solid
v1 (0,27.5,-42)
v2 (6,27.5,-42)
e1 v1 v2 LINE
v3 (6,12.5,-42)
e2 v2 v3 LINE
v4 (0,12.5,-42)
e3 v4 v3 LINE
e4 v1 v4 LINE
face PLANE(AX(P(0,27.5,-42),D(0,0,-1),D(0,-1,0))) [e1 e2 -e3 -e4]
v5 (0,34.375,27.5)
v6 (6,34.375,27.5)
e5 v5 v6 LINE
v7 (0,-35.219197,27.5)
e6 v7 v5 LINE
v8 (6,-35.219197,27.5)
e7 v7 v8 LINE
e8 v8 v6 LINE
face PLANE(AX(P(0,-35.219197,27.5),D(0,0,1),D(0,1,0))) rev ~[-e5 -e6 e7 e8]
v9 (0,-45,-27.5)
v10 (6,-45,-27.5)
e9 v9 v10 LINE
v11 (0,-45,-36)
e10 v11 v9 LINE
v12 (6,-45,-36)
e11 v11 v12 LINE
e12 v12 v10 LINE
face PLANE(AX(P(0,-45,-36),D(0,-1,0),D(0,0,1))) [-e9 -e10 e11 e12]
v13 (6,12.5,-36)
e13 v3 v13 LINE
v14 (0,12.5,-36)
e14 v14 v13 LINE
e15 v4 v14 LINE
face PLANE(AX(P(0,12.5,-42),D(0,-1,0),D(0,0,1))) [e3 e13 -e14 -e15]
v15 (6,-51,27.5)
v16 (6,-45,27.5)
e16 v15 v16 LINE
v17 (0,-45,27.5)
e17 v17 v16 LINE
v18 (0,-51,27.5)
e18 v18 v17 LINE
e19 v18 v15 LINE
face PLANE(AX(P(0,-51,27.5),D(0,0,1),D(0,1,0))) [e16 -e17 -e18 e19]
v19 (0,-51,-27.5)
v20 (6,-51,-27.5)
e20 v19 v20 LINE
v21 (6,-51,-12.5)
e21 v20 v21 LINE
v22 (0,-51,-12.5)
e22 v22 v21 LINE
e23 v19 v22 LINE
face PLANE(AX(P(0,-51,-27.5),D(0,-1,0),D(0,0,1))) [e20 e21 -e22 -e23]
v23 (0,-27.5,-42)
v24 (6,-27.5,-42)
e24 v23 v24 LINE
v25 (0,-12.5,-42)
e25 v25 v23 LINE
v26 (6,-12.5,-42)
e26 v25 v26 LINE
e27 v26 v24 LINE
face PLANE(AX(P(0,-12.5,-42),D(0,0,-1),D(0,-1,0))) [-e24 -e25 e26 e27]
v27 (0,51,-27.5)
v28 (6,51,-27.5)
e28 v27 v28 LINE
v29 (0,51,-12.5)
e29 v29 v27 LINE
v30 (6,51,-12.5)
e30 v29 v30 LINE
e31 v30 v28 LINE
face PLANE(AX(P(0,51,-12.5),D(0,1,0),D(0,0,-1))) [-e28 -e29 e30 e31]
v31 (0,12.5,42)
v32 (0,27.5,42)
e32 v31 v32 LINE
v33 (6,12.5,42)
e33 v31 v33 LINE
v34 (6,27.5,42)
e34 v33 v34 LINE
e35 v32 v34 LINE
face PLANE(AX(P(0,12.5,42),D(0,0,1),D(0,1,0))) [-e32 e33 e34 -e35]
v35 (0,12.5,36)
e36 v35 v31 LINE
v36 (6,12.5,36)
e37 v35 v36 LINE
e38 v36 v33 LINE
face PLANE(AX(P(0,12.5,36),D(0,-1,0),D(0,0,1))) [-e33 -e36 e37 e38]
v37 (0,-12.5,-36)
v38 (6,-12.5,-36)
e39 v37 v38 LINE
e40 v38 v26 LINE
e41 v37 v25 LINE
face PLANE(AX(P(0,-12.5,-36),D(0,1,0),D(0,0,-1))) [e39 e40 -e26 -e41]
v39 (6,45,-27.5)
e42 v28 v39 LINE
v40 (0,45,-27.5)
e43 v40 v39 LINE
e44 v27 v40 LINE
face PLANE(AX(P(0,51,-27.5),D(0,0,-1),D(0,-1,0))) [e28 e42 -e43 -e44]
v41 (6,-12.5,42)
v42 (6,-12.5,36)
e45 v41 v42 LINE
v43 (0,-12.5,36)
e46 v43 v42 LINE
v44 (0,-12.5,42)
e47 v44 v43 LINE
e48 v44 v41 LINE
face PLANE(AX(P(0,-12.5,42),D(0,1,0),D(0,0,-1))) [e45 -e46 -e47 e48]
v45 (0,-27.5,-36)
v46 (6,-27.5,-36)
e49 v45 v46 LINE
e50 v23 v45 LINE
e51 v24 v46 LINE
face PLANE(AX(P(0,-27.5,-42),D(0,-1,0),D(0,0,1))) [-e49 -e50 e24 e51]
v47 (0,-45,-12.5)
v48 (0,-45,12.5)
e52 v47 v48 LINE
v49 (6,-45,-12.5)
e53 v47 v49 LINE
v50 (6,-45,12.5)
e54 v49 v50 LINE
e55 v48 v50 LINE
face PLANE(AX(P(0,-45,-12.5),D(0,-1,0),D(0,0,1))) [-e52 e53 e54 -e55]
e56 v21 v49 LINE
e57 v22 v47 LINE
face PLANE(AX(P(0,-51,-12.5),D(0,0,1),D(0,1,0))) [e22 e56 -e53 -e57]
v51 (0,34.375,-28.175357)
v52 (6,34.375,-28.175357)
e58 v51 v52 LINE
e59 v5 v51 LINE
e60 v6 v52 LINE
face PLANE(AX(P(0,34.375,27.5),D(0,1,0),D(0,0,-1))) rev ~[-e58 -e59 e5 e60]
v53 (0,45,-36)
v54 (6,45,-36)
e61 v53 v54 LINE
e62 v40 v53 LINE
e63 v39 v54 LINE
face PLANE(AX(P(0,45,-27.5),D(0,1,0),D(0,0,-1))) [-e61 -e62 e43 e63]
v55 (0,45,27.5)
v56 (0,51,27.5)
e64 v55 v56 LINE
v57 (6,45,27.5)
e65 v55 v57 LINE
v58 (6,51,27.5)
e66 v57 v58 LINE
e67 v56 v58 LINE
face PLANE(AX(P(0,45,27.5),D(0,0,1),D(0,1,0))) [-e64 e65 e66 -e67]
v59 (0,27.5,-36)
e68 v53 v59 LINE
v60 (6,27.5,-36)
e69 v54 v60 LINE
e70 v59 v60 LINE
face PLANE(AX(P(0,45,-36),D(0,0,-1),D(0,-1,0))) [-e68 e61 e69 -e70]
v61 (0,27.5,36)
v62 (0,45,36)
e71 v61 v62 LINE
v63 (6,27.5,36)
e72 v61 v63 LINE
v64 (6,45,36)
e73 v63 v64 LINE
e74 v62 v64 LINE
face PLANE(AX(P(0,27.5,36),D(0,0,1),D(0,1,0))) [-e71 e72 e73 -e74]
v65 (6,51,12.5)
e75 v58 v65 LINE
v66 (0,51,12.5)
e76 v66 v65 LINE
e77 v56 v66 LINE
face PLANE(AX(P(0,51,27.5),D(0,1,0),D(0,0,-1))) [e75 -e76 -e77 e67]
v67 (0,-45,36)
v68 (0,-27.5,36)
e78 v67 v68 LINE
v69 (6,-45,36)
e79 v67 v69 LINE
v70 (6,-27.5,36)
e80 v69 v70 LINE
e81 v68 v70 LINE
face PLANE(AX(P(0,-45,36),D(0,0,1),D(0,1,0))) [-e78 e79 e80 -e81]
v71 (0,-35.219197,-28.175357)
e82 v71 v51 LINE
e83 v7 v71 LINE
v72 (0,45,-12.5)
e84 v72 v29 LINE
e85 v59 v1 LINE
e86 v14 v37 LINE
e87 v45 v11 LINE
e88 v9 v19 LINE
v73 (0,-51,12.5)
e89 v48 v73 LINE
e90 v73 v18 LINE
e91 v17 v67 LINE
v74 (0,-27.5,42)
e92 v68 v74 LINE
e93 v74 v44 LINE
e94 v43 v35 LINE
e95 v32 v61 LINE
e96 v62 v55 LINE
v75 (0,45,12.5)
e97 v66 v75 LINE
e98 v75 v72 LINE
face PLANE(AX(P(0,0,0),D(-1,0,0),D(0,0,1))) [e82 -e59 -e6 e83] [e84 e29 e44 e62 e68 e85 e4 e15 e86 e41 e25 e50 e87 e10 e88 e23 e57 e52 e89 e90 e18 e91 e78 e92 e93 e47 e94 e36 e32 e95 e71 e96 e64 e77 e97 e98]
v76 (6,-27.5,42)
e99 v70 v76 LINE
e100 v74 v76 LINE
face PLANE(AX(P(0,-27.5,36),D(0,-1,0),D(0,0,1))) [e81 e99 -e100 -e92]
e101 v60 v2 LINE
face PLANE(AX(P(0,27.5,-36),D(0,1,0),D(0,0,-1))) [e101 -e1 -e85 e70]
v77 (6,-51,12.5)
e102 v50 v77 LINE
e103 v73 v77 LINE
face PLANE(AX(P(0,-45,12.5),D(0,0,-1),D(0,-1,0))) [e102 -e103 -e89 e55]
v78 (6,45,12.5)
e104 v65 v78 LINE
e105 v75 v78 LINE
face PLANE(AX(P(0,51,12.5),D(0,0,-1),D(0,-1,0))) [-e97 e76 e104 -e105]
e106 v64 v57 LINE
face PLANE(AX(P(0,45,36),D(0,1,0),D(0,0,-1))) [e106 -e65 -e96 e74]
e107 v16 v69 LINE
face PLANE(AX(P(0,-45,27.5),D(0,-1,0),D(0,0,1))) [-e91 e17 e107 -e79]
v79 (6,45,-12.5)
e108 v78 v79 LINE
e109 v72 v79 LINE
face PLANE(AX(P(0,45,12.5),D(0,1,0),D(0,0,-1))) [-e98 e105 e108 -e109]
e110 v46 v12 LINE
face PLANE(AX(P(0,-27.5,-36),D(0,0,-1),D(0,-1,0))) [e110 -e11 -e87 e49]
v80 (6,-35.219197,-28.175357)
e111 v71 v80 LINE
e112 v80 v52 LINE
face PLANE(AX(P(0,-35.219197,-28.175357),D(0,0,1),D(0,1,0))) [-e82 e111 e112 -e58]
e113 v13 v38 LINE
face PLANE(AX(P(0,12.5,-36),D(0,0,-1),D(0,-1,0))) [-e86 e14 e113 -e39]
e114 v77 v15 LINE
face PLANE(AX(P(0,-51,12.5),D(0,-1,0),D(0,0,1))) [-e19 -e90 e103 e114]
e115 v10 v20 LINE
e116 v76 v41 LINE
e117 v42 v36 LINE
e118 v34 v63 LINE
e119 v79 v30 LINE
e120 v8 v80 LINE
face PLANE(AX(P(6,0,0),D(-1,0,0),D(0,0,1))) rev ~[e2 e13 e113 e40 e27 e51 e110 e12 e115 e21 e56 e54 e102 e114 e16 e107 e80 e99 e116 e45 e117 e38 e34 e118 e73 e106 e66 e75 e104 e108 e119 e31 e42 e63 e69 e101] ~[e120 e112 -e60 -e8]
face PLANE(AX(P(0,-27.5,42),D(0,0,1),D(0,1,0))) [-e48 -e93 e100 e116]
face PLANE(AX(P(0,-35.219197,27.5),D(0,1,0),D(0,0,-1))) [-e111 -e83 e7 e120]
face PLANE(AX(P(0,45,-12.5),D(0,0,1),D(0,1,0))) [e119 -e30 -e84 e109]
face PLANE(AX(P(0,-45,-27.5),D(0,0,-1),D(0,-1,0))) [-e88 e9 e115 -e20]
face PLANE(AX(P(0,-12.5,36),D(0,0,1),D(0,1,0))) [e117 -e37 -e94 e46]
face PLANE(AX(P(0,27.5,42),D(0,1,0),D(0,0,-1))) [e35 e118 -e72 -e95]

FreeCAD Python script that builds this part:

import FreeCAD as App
import Part
import Sketcher

V = App.Vector

doc = App.newDocument("Part")
body = doc.addObject("PartDesign::Body", "Body")

# Sketch on YZ plane
sketch1 = body.newObject("Sketcher::SketchObject", "Sketch")
sketch1.AttachmentSupport = (doc.getObject("YZ_Plane"), [""])
sketch1.MapMode = "FlatFace"
sketch1.addGeometry([
    Part.LineSegment(V(-45, -27.5, 0), V(-45, -36, 0)),  # 0
    Part.LineSegment(V(-45, -36, 0), V(-27.5, -36, 0)),  # 1
    Part.LineSegment(V(-27.5, -36, 0), V(-27.5, -42, 0)),  # 2
    Part.LineSegment(V(-27.5, -42, 0), V(-12.5, -42, 0)),  # 3
    Part.LineSegment(V(-12.5, -42, 0), V(-12.5, -36, 0)),  # 4
    Part.LineSegment(V(-12.5, -36, 0), V(12.5, -36, 0)),  # 5
    Part.LineSegment(V(12.5, -36, 0), V(12.5, -42, 0)),  # 6
    Part.LineSegment(V(12.5, -42, 0), V(27.5, -42, 0)),  # 7
    Part.LineSegment(V(27.5, -42, 0), V(27.5, -36, 0)),  # 8
    Part.LineSegment(V(27.5, -36, 0), V(45, -36, 0)),  # 9
    Part.LineSegment(V(45, -36, 0), V(45, -27.5, 0)),  # 10
    Part.LineSegment(V(45, -27.5, 0), V(51, -27.5, 0)),  # 11
    Part.LineSegment(V(51, -27.5, 0), V(51, -12.5, 0)),  # 12
    Part.LineSegment(V(51, -12.5, 0), V(45, -12.5, 0)),  # 13
    Part.LineSegment(V(45, -12.5, 0), V(45, 12.5, 0)),  # 14
    Part.LineSegment(V(45, 12.5, 0), V(51, 12.5, 0)),  # 15
    Part.LineSegment(V(51, 12.5, 0), V(51, 27.5, 0)),  # 16
    Part.LineSegment(V(51, 27.5, 0), V(45, 27.5, 0)),  # 17
    Part.LineSegment(V(45, 27.5, 0), V(45, 36, 0)),  # 18
    Part.LineSegment(V(45, 36, 0), V(27.5, 36, 0)),  # 19
    Part.LineSegment(V(27.5, 36, 0), V(27.5, 42, 0)),  # 20
    Part.LineSegment(V(27.5, 42, 0), V(12.5, 42, 0)),  # 21
    Part.LineSegment(V(12.5, 42, 0), V(12.5, 36, 0)),  # 22
    Part.LineSegment(V(12.5, 36, 0), V(-12.5, 36, 0)),  # 23
    Part.LineSegment(V(-12.5, 36, 0), V(-12.5, 42, 0)),  # 24
    Part.LineSegment(V(-12.5, 42, 0), V(-27.5, 42, 0)),  # 25
    Part.LineSegment(V(-27.5, 42, 0), V(-27.5, 36, 0)),  # 26
    Part.LineSegment(V(-27.5, 36, 0), V(-45, 36, 0)),  # 27
    Part.LineSegment(V(-45, 36, 0), V(-45, 27.5, 0)),  # 28
    Part.LineSegment(V(-45, 27.5, 0), V(-51, 27.5, 0)),  # 29
    Part.LineSegment(V(-51, 27.5, 0), V(-51, 12.5, 0)),  # 30
    Part.LineSegment(V(-51, 12.5, 0), V(-45, 12.5, 0)),  # 31
    Part.LineSegment(V(-45, 12.5, 0), V(-45, -12.5, 0)),  # 32
    Part.LineSegment(V(-45, -12.5, 0), V(-51, -12.5, 0)),  # 33
    Part.LineSegment(V(-51, -12.5, 0), V(-51, -27.5, 0)),  # 34
    Part.LineSegment(V(-51, -27.5, 0), V(-45, -27.5, 0)),  # 35
    Part.LineSegment(V(-35.219197, 27.5, 0), V(34.375, 27.5, 0)),  # 36
    Part.LineSegment(V(34.375, 27.5, 0), V(34.375, -28.175357, 0)),  # 37
    Part.LineSegment(V(34.375, -28.175357, 0), V(-35.219197, -28.175357, 0)),  # 38
    Part.LineSegment(V(-35.219197, -28.175357, 0), V(-35.219197, 27.5, 0)),  # 39
], False)
sketch1.addConstraint([
    Sketcher.Constraint("Coincident", 0, 2, 1, 1),
    Sketcher.Constraint("Coincident", 1, 2, 2, 1),
    Sketcher.Constraint("Coincident", 2, 2, 3, 1),
    Sketcher.Constraint("Coincident", 3, 2, 4, 1),
    Sketcher.Constraint("Coincident", 4, 2, 5, 1),
    Sketcher.Constraint("Coincident", 5, 2, 6, 1),
    Sketcher.Constraint("Coincident", 6, 2, 7, 1),
    Sketcher.Constraint("Coincident", 7, 2, 8, 1),
    Sketcher.Constraint("Coincident", 8, 2, 9, 1),
    Sketcher.Constraint("Coincident", 9, 2, 10, 1),
    Sketcher.Constraint("Coincident", 10, 2, 11, 1),
    Sketcher.Constraint("Coincident", 11, 2, 12, 1),
    Sketcher.Constraint("Coincident", 12, 2, 13, 1),
    Sketcher.Constraint("Coincident", 13, 2, 14, 1),
    Sketcher.Constraint("Coincident", 14, 2, 15, 1),
    Sketcher.Constraint("Coincident", 15, 2, 16, 1),
    Sketcher.Constraint("Coincident", 16, 2, 17, 1),
    Sketcher.Constraint("Coincident", 17, 2, 18, 1),
    Sketcher.Constraint("Coincident", 18, 2, 19, 1),
    Sketcher.Constraint("Coincident", 19, 2, 20, 1),
    Sketcher.Constraint("Coincident", 20, 2, 21, 1),
    Sketcher.Constraint("Coincident", 21, 2, 22, 1),
    Sketcher.Constraint("Coincident", 22, 2, 23, 1),
    Sketcher.Constraint("Coincident", 23, 2, 24, 1),
    Sketcher.Constraint("Coincident", 24, 2, 25, 1),
    Sketcher.Constraint("Coincident", 25, 2, 26, 1),
    Sketcher.Constraint("Coincident", 26, 2, 27, 1),
    Sketcher.Constraint("Coincident", 27, 2, 28, 1),
    Sketcher.Constraint("Coincident", 28, 2, 29, 1),
    Sketcher.Constraint("Coincident", 29, 2, 30, 1),
    Sketcher.Constraint("Coincident", 30, 2, 31, 1),
    Sketcher.Constraint("Coincident", 31, 2, 32, 1),
    Sketcher.Constraint("Coincident", 32, 2, 33, 1),
    Sketcher.Constraint("Coincident", 33, 2, 34, 1),
    Sketcher.Constraint("Coincident", 34, 2, 35, 1),
    Sketcher.Constraint("Coincident", 35, 2, 0, 1),
    Sketcher.Constraint("Coincident", 36, 2, 37, 1),
    Sketcher.Constraint("Coincident", 37, 2, 38, 1),
    Sketcher.Constraint("Coincident", 38, 2, 39, 1),
    Sketcher.Constraint("Coincident", 39, 2, 36, 1),
    Sketcher.Constraint("Vertical", 0),
    Sketcher.Constraint("Horizontal", 1),
    Sketcher.Constraint("Vertical", 2),
    Sketcher.Constraint("Horizontal", 3),
    Sketcher.Constraint("Vertical", 4),
    Sketcher.Constraint("Horizontal", 5),
    Sketcher.Constraint("Vertical", 6),
    Sketcher.Constraint("Horizontal", 7),
    Sketcher.Constraint("Vertical", 8),
    Sketcher.Constraint("Horizontal", 9),
    Sketcher.Constraint("Vertical", 10),
    Sketcher.Constraint("Horizontal", 11),
    Sketcher.Constraint("Vertical", 12),
    Sketcher.Constraint("Horizontal", 13),
    Sketcher.Constraint("Vertical", 14),
    Sketcher.Constraint("Horizontal", 15),
    Sketcher.Constraint("Vertical", 16),
    Sketcher.Constraint("Horizontal", 17),
    Sketcher.Constraint("Vertical", 18),
    Sketcher.Constraint("Horizontal", 19),
    Sketcher.Constraint("Vertical", 20),
    Sketcher.Constraint("Horizontal", 21),
    Sketcher.Constraint("Vertical", 22),
    Sketcher.Constraint("Horizontal", 23),
    Sketcher.Constraint("Vertical", 24),
    Sketcher.Constraint("Horizontal", 25),
    Sketcher.Constraint("Vertical", 26),
    Sketcher.Constraint("Horizontal", 27),
    Sketcher.Constraint("Vertical", 28),
    Sketcher.Constraint("Horizontal", 29),
    Sketcher.Constraint("Vertical", 30),
    Sketcher.Constraint("Horizontal", 31),
    Sketcher.Constraint("Vertical", 32),
    Sketcher.Constraint("Horizontal", 33),
    Sketcher.Constraint("Vertical", 34),
    Sketcher.Constraint("Horizontal", 35),
    Sketcher.Constraint("Horizontal", 36),
    Sketcher.Constraint("Vertical", 37),
    Sketcher.Constraint("Horizontal", 38),
    Sketcher.Constraint("Vertical", 39),
    Sketcher.Constraint("Symmetric", 0, 2, 18, 2, -1, 1),
    Sketcher.Constraint("Symmetric", 2, 2, 20, 2, -1, 1),
    Sketcher.Constraint("Symmetric", 4, 2, 22, 2, -1, 1),
    Sketcher.Constraint("Symmetric", 6, 2, 24, 2, -1, 1),
    Sketcher.Constraint("Symmetric", 8, 2, 26, 2, -1, 1),
    Sketcher.Constraint("Symmetric", 10, 2, 28, 2, -1, 1),
    Sketcher.Constraint("Symmetric", 12, 2, 30, 2, -1, 1),
    Sketcher.Constraint("Symmetric", 14, 2, 32, 2, -1, 1),
    Sketcher.Constraint("Symmetric", 16, 2, 34, 2, -1, 1),
    Sketcher.Constraint("Symmetric", 3, 2, 6, 2, -2),
    Sketcher.Constraint("Symmetric", 1, 2, 8, 2, -2),
    Sketcher.Constraint("Symmetric", 17, 2, 28, 2, -2),
    Sketcher.Constraint("Symmetric", 15, 2, 30, 2, -2),
    Sketcher.Constraint("Horizontal", 1, 2, 4, 2),
    Sketcher.Constraint("Horizontal", 29, 2, 36, 2),
    Sketcher.Constraint("Vertical", 10, 2, 13, 2),
    Sketcher.Constraint("Equal", 35, 2),
    Sketcher.Constraint("Equal", 25, 12),
    Sketcher.Constraint("Equal", 23, 14),
    Sketcher.Constraint("DistanceX", 3, 1, 3, 2, 15.0),
    Sketcher.Constraint("DistanceX", 5, 1, 5, 2, 25.0),
    Sketcher.Constraint("DistanceX", 11, 1, 11, 2, 6.0),
    Sketcher.Constraint("DistanceX", 1, 1, 1, 2, 17.5),
    Sketcher.Constraint("DistanceY", 0, 2, 0, 1, 8.5),
    Sketcher.Constraint("DistanceX", -1, 1, 36, 2, 34.375),
    Sketcher.Constraint("DistanceX", 36, 1, 36, 2, 69.594197),
    Sketcher.Constraint("DistanceY", 37, 2, 37, 1, 55.675357),
])
pad1 = body.newObject("PartDesign::Pad", "Pad")
pad1.Profile = sketch1
pad1.Length = 6

doc.recompute()
